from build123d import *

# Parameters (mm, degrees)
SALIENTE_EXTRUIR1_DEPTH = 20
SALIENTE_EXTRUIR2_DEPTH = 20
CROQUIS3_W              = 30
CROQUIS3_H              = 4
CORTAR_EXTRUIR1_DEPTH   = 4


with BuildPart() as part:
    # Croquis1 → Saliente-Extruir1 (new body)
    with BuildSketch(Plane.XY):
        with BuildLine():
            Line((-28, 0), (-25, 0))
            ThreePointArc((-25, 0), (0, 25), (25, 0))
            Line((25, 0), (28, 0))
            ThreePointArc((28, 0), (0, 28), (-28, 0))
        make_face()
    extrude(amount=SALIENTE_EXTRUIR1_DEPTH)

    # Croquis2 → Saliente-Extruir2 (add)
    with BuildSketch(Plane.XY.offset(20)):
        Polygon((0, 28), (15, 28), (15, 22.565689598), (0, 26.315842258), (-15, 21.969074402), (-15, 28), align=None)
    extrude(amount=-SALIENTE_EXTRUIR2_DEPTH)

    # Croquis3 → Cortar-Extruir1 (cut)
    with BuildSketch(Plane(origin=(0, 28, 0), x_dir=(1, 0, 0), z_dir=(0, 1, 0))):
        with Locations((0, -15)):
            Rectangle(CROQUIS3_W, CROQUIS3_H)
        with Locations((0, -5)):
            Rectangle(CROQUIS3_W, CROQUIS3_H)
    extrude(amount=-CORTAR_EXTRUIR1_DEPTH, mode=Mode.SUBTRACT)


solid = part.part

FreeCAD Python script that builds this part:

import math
import FreeCAD as App
import Part
import Sketcher

V = App.Vector

doc = App.newDocument("Part")
body = doc.addObject("PartDesign::Body", "Body")

# Sketch on XY plane
sketch1 = body.newObject("Sketcher::SketchObject", "Sketch")
sketch1.AttachmentSupport = (doc.getObject("XY_Plane"), [""])
sketch1.MapMode = "FlatFace"
sketch1.addGeometry([
    Part.LineSegment(V(-28, 0, 0), V(-25, 0, 0)),
    Part.ArcOfCircle(Part.Circle(V(0, 0, 0), V(0, 0, 1), 25), math.radians(0), math.radians(180)),
    Part.LineSegment(V(25, 0, 0), V(28, 0, 0)),
    Part.ArcOfCircle(Part.Circle(V(0, 0, 0), V(0, 0, 1), 28), math.radians(0), math.radians(180)),
], False)
sketch1.addConstraint([
    Sketcher.Constraint("Coincident", 0, 2, 1, 2),
    Sketcher.Constraint("Coincident", 1, 1, 2, 1),
    Sketcher.Constraint("Coincident", 2, 2, 3, 1),
    Sketcher.Constraint("Coincident", 3, 2, 0, 1),
    Sketcher.Constraint("Horizontal", 0),
    Sketcher.Constraint("Horizontal", 2),
    Sketcher.Constraint("Coincident", 1, 3, -1, 1),
    Sketcher.Constraint("Coincident", 3, 3, -1, 1),
    Sketcher.Constraint("PointOnObject", 0, 2, -1),
    Sketcher.Constraint("PointOnObject", 1, 1, -1),
    Sketcher.Constraint("Radius", 1, 25.0),
    Sketcher.Constraint("Radius", 3, 28.0),
])
pad1 = body.newObject("PartDesign::Pad", "Pad")
pad1.Profile = sketch1
pad1.Length = 20

# Sketch on XY plane
sketch2 = body.newObject("Sketcher::SketchObject", "Sketch001")
sketch2.AttachmentSupport = (doc.getObject("XY_Plane"), [""])
sketch2.MapMode = "FlatFace"
sketch2.AttachmentOffset = App.Placement(V(0, 0, 20), App.Rotation())
sketch2.addGeometry([
    Part.LineSegment(V(15, 28, 0), V(-15, 28, 0)),  # 0
    Part.LineSegment(V(-15, 28, 0), V(-15, 22, 0)),  # 1
    Part.LineSegment(V(-15, 22, 0), V(0, 26, 0)),  # 2
    Part.LineSegment(V(0, 26, 0), V(15, 23, 0)),  # 3
    Part.LineSegment(V(15, 23, 0), V(15, 28, 0)),  # 4
], False)
sketch2.addConstraint([
    Sketcher.Constraint("Coincident", 0, 2, 1, 1),
    Sketcher.Constraint("Coincident", 1, 2, 2, 1),
    Sketcher.Constraint("Coincident", 2, 2, 3, 1),
    Sketcher.Constraint("Coincident", 3, 2, 4, 1),
    Sketcher.Constraint("Coincident", 4, 2, 0, 1),
    Sketcher.Constraint("Horizontal", 0),
    Sketcher.Constraint("Vertical", 1),
    Sketcher.Constraint("Vertical", 4),
    Sketcher.Constraint("PointOnObject", 2, 2, -2),
    Sketcher.Constraint("DistanceX", 0, 2, 0, 1, 30.0),
    Sketcher.Constraint("DistanceX", 0, 2, -1, 1, 15.0),
    Sketcher.Constraint("DistanceY", -1, 1, 0, 2, 28.0),
    Sketcher.Constraint("DistanceY", 4, 1, 4, 2, 5.43431),
    Sketcher.Constraint("Distance", 2, 15.617119),
    Sketcher.Constraint("DistanceY", 1, 2, 1, 1, 6.030926),
])
pad2 = body.newObject("PartDesign::Pad", "Pad001")
pad2.Profile = sketch2
pad2.Length = 20
pad2.Reversed = True

# Sketch on XZ plane
sketch3 = body.newObject("Sketcher::SketchObject", "Sketch002")
sketch3.AttachmentSupport = (doc.getObject("XZ_Plane"), [""])
sketch3.MapMode = "FlatFace"
sketch3.AttachmentOffset = App.Placement(V(0, 0, -28), App.Rotation())
sketch3.addGeometry([
    Part.LineSegment(V(-15, 13, 0), V(-15, 17, 0)),  # 0
    Part.LineSegment(V(-15, 17, 0), V(15, 17, 0)),  # 1
    Part.LineSegment(V(15, 17, 0), V(15, 13, 0)),  # 2
    Part.LineSegment(V(15, 13, 0), V(-15, 13, 0)),  # 3
    Part.LineSegment(V(-15, 3, 0), V(-15, 7, 0)),  # 4
    Part.LineSegment(V(-15, 7, 0), V(15, 7, 0)),  # 5
    Part.LineSegment(V(15, 7, 0), V(15, 3, 0)),  # 6
    Part.LineSegment(V(15, 3, 0), V(-15, 3, 0)),  # 7
], False)
sketch3.addConstraint([
    Sketcher.Constraint("Coincident", 0, 2, 1, 1),
    Sketcher.Constraint("Coincident", 1, 2, 2, 1),
    Sketcher.Constraint("Coincident", 2, 2, 3, 1),
    Sketcher.Constraint("Coincident", 3, 2, 0, 1),
    Sketcher.Constraint("Coincident", 4, 2, 5, 1),
    Sketcher.Constraint("Coincident", 5, 2, 6, 1),
    Sketcher.Constraint("Coincident", 6, 2, 7, 1),
    Sketcher.Constraint("Coincident", 7, 2, 4, 1),
    Sketcher.Constraint("Vertical", 0),
    Sketcher.Constraint("Horizontal", 1),
    Sketcher.Constraint("Vertical", 2),
    Sketcher.Constraint("Horizontal", 3),
    Sketcher.Constraint("Vertical", 4),
    Sketcher.Constraint("Horizontal", 5),
    Sketcher.Constraint("Vertical", 6),
    Sketcher.Constraint("Horizontal", 7),
    Sketcher.Constraint("Vertical", 3, 2, 4, 2),
    Sketcher.Constraint("Vertical", 2, 2, 5, 2),
    Sketcher.Constraint("Equal", 2, 4),
    Sketcher.Constraint("DistanceX", 1, 1, 1, 2, 30.0),
    Sketcher.Constraint("DistanceY", 0, 1, 0, 2, 4.0),
    Sketcher.Constraint("DistanceX", 0, 2, -1, 1, 15.0),
    Sketcher.Constraint("DistanceY", -1, 1, 0, 2, 17.0),
    Sketcher.Constraint("DistanceY", -1, 1, 4, 2, 7.0),
])
pocket1 = body.newObject("PartDesign::Pocket", "Pocket")
pocket1.Profile = sketch3
pocket1.Length = 4
pocket1.Reversed = True

doc.recompute()
